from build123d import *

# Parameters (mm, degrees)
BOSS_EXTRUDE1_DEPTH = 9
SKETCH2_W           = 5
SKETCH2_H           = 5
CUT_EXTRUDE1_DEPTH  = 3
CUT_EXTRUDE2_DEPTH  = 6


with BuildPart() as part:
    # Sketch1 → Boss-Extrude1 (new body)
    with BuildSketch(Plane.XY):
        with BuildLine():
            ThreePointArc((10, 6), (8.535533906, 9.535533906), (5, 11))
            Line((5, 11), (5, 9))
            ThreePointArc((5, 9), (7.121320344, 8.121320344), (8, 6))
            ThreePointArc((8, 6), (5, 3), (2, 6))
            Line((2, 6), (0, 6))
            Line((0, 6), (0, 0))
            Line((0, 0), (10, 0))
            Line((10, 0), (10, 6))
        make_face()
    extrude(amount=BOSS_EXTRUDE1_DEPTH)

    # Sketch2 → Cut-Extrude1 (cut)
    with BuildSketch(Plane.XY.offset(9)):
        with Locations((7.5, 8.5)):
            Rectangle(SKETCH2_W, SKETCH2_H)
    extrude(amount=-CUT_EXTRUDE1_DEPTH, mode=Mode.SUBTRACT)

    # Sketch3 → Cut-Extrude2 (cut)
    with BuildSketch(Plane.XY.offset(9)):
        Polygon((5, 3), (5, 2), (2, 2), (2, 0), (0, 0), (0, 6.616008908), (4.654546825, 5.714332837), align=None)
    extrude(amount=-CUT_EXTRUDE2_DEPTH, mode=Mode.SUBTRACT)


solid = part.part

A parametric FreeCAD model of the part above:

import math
import FreeCAD as App
import Part
import Sketcher

V = App.Vector
Q = App.Units.Quantity


def add_polygon(sketch, points):
    """Adds a closed chain of lines whose ends are joined by coincident constraints."""
    first, n = sketch.GeometryCount, len(points)
    for a, b in zip(points, points[1:] + points[:1]):
        sketch.addGeometry(Part.LineSegment(App.Vector(*a, 0), App.Vector(*b, 0)), False)
    for i in range(n):
        sketch.addConstraint(Sketcher.Constraint("Coincident", first + i, 2, first + (i + 1) % n, 1))

doc = App.newDocument("Part")
body = doc.addObject("PartDesign::Body", "Body")

# Sketch on XY plane
sketch1 = body.newObject("Sketcher::SketchObject", "Sketch")
sketch1.AttachmentSupport = (doc.getObject("XY_Plane"), [""])
sketch1.MapMode = "FlatFace"
sketch1.addGeometry([
    Part.ArcOfCircle(Part.Circle(V(5, 6, 0), V(0, 0, 1), 5), math.radians(0), math.radians(90)),  # 0
    Part.LineSegment(V(5, 11, 0), V(5, 9, 0)),  # 1
    Part.ArcOfCircle(Part.Circle(V(5, 6, 0), V(0, 0, 1), 3), math.radians(0), math.radians(90)),  # 2
    Part.ArcOfCircle(Part.Circle(V(5, 6, 0), V(0, 0, 1), 3), math.radians(180), math.radians(360)),  # 3
    Part.LineSegment(V(2, 6, 0), V(0, 6, 0)),  # 4
    Part.LineSegment(V(0, 6, 0), V(0, 0, 0)),  # 5
    Part.LineSegment(V(0, 0, 0), V(10, 0, 0)),  # 6
    Part.LineSegment(V(10, 0, 0), V(10, 6, 0)),  # 7
], False)
sketch1.addConstraint([
    Sketcher.Constraint("Coincident", 0, 2, 1, 1),
    Sketcher.Constraint("Coincident", 1, 2, 2, 2),
    Sketcher.Constraint("Tangent", 2, 1, 3, 2),
    Sketcher.Constraint("Coincident", 3, 1, 4, 1),
    Sketcher.Constraint("Coincident", 4, 2, 5, 1),
    Sketcher.Constraint("Coincident", 5, 2, 6, 1),
    Sketcher.Constraint("Coincident", 6, 2, 7, 1),
    Sketcher.Constraint("Tangent", 7, 2, 0, 1),
    Sketcher.Constraint("Vertical", 1),
    Sketcher.Constraint("Horizontal", 4),
    Sketcher.Constraint("Vertical", 5),
    Sketcher.Constraint("Horizontal", 6),
    Sketcher.Constraint("Vertical", 7),
    Sketcher.Constraint("Coincident", 5, 2, -1, 1),
    Sketcher.Constraint("Coincident", 2, 3, 0, 3),
    Sketcher.Constraint("Equal", 2, 3),
    Sketcher.Constraint("Horizontal", 3, 3, 2, 1),
    Sketcher.Constraint("Horizontal", 2, 1, 3, 1),
    Sketcher.Constraint("Vertical", 3, 3, 0, 2),
    Sketcher.Constraint("Equal", 4, 1),
    Sketcher.Constraint("Radius", 0, Q("5 mm")),
    Sketcher.Constraint("Radius", 2, Q("3 mm")),
    Sketcher.Constraint("DistanceY", 5, 2, 5, 1, Q("6 mm")),
])
pad1 = body.newObject("PartDesign::Pad", "Pad")
pad1.Profile = sketch1
pad1.Length = 9

# Sketch on XY plane
sketch2 = body.newObject("Sketcher::SketchObject", "Sketch001")
sketch2.AttachmentSupport = (doc.getObject("XY_Plane"), [""])
sketch2.MapMode = "FlatFace"
sketch2.AttachmentOffset = App.Placement(V(0, 0, 9), App.Rotation())
add_polygon(sketch2, [(5, 11), (5, 6), (10, 6), (10, 11)])  # lines 0-3
sketch2.addConstraint([
    Sketcher.Constraint("Vertical", 0),
    Sketcher.Constraint("Horizontal", 1),
    Sketcher.Constraint("Vertical", 2),
    Sketcher.Constraint("Horizontal", 3),
    Sketcher.Constraint("Equal", 3, 0),
    Sketcher.Constraint("DistanceX", 1, 1, 1, 2, Q("5 mm")),
    Sketcher.Constraint("DistanceX", -1, 1, 0, 2, Q("5 mm")),
    Sketcher.Constraint("DistanceY", -1, 1, 0, 2, Q("6 mm")),
])
pocket1 = body.newObject("PartDesign::Pocket", "Pocket")
pocket1.Profile = sketch2
pocket1.Length = 3

# Sketch on XY plane
sketch3 = body.newObject("Sketcher::SketchObject", "Sketch002")
sketch3.AttachmentSupport = (doc.getObject("XY_Plane"), [""])
sketch3.MapMode = "FlatFace"
sketch3.AttachmentOffset = App.Placement(V(0, 0, 9), App.Rotation())
add_polygon(sketch3, [(5, 2), (5, 3), (4.7, 5.7), (0, 6.6), (0, 0), (2, 0), (2, 2)])  # lines 0-6
sketch3.addConstraint([
    Sketcher.Constraint("Vertical", 0),
    Sketcher.Constraint("Vertical", 3),
    Sketcher.Constraint("Horizontal", 4),
    Sketcher.Constraint("Vertical", 5),
    Sketcher.Constraint("Horizontal", 6),
    Sketcher.Constraint("Coincident", 3, 2, -1, 1),
    Sketcher.Constraint("Equal", 4, 5),
    Sketcher.Constraint("DistanceX", 4, 1, 4, 2, Q("2 mm")),
    Sketcher.Constraint("DistanceX", 6, 1, 6, 2, Q("3 mm")),
    Sketcher.Constraint("DistanceY", 0, 1, 0, 2, Q("1 mm")),
    Sketcher.Constraint("DistanceY", 3, 2, 3, 1, Q("6.616009 mm")),
    Sketcher.Constraint("Distance", 2, Q("4.741079 mm")),
    Sketcher.Constraint("Distance", 1, Q("2.736227 mm")),
])
pocket2 = body.newObject("PartDesign::Pocket", "Pocket001")
pocket2.Profile = sketch3
pocket2.Length = 6

doc.recompute()
